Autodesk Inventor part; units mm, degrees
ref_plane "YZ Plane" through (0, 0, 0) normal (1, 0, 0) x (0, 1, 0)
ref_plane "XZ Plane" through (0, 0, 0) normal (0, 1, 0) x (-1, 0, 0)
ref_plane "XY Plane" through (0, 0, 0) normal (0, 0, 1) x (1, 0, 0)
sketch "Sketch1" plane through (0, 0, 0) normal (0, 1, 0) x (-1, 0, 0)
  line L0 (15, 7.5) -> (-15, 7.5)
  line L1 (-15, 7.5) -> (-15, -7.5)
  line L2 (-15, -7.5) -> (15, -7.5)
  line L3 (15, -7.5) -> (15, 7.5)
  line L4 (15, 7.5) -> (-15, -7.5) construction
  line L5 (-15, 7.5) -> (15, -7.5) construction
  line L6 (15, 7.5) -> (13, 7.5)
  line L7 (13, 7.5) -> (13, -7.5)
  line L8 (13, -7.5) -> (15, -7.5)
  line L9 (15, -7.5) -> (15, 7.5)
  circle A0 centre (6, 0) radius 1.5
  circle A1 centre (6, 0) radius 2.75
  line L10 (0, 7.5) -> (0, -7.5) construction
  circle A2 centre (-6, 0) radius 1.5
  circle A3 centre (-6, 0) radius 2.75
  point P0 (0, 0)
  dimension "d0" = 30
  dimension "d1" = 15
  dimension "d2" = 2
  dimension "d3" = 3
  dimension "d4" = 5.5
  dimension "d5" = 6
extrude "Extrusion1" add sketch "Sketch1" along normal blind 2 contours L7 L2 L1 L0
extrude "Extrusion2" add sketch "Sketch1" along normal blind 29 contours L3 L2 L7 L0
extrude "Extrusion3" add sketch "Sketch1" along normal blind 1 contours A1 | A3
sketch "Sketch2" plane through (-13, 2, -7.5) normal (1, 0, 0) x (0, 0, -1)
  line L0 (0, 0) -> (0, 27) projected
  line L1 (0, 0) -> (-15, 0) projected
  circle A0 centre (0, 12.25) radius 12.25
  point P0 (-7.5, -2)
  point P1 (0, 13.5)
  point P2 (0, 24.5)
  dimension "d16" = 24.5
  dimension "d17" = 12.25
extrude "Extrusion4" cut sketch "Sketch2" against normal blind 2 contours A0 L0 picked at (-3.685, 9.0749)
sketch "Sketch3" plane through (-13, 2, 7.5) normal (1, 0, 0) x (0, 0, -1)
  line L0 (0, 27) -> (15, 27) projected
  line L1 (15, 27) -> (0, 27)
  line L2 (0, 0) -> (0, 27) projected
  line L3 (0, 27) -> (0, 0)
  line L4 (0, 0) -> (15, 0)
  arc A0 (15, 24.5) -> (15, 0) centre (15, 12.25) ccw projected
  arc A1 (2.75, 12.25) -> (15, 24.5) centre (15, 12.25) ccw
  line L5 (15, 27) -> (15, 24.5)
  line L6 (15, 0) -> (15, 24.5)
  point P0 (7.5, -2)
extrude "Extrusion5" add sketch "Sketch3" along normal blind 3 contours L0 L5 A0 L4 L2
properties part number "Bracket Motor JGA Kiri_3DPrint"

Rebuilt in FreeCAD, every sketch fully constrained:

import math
import FreeCAD as App
import Part
import Sketcher

V = App.Vector
Q = App.Units.Quantity

doc = App.newDocument("Part")
body = doc.addObject("PartDesign::Body", "Body")

sketch1 = body.newObject("Sketcher::SketchObject", "Sketch")
sketch1.AttachmentSupport = (doc.getObject("XZ_Plane"), [""])
sketch1.MapMode = "FlatFace"
sketch1.addGeometry([
    Part.LineSegment(V(-13, -7.5, 0), V(-13, 7.5, 0)),
    Part.LineSegment(V(-13, 7.5, 0), V(15, 7.5, 0)),
    Part.LineSegment(V(15, 7.5, 0), V(15, -7.5, 0)),
    Part.LineSegment(V(15, -7.5, 0), V(-13, -7.5, 0)),
    Part.Circle(V(6, 0, 0), V(0, 0, 1), 2.8),
    Part.Circle(V(-6, 0, 0), V(0, 0, 1), 2.8),
], False)
sketch1.addConstraint([
    Sketcher.Constraint("Coincident", 0, 2, 1, 1),
    Sketcher.Constraint("Coincident", 1, 2, 2, 1),
    Sketcher.Constraint("Coincident", 2, 2, 3, 1),
    Sketcher.Constraint("Coincident", 3, 2, 0, 1),
    Sketcher.Constraint("Vertical", 0),
    Sketcher.Constraint("Horizontal", 1),
    Sketcher.Constraint("Vertical", 2),
    Sketcher.Constraint("Horizontal", 3),
    Sketcher.Constraint("Equal", 4, 5),
    Sketcher.Constraint("Symmetric", 4, 3, 5, 3, -1, 1),
    Sketcher.Constraint("PointOnObject", 4, 3, -1),
    Sketcher.Constraint("Diameter", 4, Q("5.5 mm")),
    Sketcher.Constraint("DistanceY", 0, 1, 0, 2, Q("15 mm")),
    Sketcher.Constraint("DistanceX", -1, 1, 4, 3, Q("6 mm")),
    Sketcher.Constraint("DistanceX", -1, 1, 1, 2, Q("15 mm")),
    Sketcher.Constraint("DistanceX", 1, 1, 1, 2, Q("28 mm")),
    Sketcher.Constraint("DistanceY", -1, 1, 0, 2, Q("7.5 mm")),
])
pad1 = body.newObject("PartDesign::Pad", "Pad")
pad1.Profile = sketch1
pad1.Length = 2
pad1.Reversed = True

sketch2 = body.newObject("Sketcher::SketchObject", "Sketch001")
sketch2.AttachmentSupport = (doc.getObject("XZ_Plane"), [""])
sketch2.MapMode = "FlatFace"
sketch2.addGeometry([
    Part.LineSegment(V(-15, -7.5, 0), V(-15, 7.5, 0)),
    Part.LineSegment(V(-15, 7.5, 0), V(-13, 7.5, 0)),
    Part.LineSegment(V(-13, 7.5, 0), V(-13, -7.5, 0)),
    Part.LineSegment(V(-13, -7.5, 0), V(-15, -7.5, 0)),
], False)
sketch2.addConstraint([
    Sketcher.Constraint("Coincident", 0, 2, 1, 1),
    Sketcher.Constraint("Coincident", 1, 2, 2, 1),
    Sketcher.Constraint("Coincident", 2, 2, 3, 1),
    Sketcher.Constraint("Coincident", 3, 2, 0, 1),
    Sketcher.Constraint("Vertical", 0),
    Sketcher.Constraint("Horizontal", 1),
    Sketcher.Constraint("Vertical", 2),
    Sketcher.Constraint("Horizontal", 3),
    Sketcher.Constraint("DistanceX", 1, 1, 1, 2, Q("2 mm")),
    Sketcher.Constraint("DistanceY", 0, 1, 0, 2, Q("15 mm")),
    Sketcher.Constraint("DistanceX", 0, 2, -1, 1, Q("15 mm")),
    Sketcher.Constraint("DistanceY", -1, 1, 0, 2, Q("7.5 mm")),
])
pad2 = body.newObject("PartDesign::Pad", "Pad001")
pad2.Profile = sketch2
pad2.Length = 29
pad2.Reversed = True

sketch3 = body.newObject("Sketcher::SketchObject", "Sketch002")
sketch3.AttachmentSupport = (doc.getObject("XZ_Plane"), [""])
sketch3.MapMode = "FlatFace"
sketch3.addGeometry([
    Part.Circle(V(-6, 0, 0), V(0, 0, 1), 2.8),
    Part.Circle(V(-6, 0, 0), V(0, 0, 1), 1.5),
    Part.Circle(V(6, 0, 0), V(0, 0, 1), 2.8),
    Part.Circle(V(6, 0, 0), V(0, 0, 1), 1.5),
], False)
sketch3.addConstraint([
    Sketcher.Constraint("Coincident", 1, 3, 0, 3),
    Sketcher.Constraint("Coincident", 3, 3, 2, 3),
    Sketcher.Constraint("Equal", 0, 2),
    Sketcher.Constraint("Equal", 1, 3),
    Sketcher.Constraint("Symmetric", 0, 3, 2, 3, -1, 1),
    Sketcher.Constraint("PointOnObject", 0, 3, -1),
    Sketcher.Constraint("Diameter", 1, Q("3 mm")),
    Sketcher.Constraint("Diameter", 0, Q("5.5 mm")),
    Sketcher.Constraint("DistanceX", 0, 3, -1, 1, Q("6 mm")),
])
pad3 = body.newObject("PartDesign::Pad", "Pad002")
pad3.Profile = sketch3
pad3.Length = 1
pad3.Reversed = True

sketch4 = body.newObject("Sketcher::SketchObject", "Sketch003")
sketch4.AttachmentSupport = (doc.getObject("YZ_Plane"), [""])
sketch4.MapMode = "FlatFace"
sketch4.AttachmentOffset = App.Placement(V(0, 0, -13), App.Rotation())
sketch4.addGeometry([
    Part.ArcOfCircle(Part.Circle(V(14, -8, 0), V(0, 0, 1), 12), math.radians(0), math.radians(180)),
    Part.LineSegment(V(2, -8, 0), V(26, -8, 0)),
], False)
sketch4.addConstraint([
    Sketcher.Constraint("Coincident", 0, 1, 1, 2),
    Sketcher.Constraint("Coincident", 1, 1, 0, 2),
    Sketcher.Constraint("Horizontal", 1),
    Sketcher.Constraint("Radius", 0, Q("12.25 mm")),
    Sketcher.Constraint("DistanceX", -1, 1, 1, 1, Q("2 mm")),
    Sketcher.Constraint("DistanceY", 0, 3, -1, 1, Q("7.5 mm")),
    Sketcher.Constraint("DistanceY", 0, 1, -1, 1, Q("7.5 mm")),
])
pocket1 = body.newObject("PartDesign::Pocket", "Pocket")
pocket1.Profile = sketch4
pocket1.Length = 2

sketch5 = body.newObject("Sketcher::SketchObject", "Sketch004")
sketch5.AttachmentSupport = (doc.getObject("YZ_Plane"), [""])
sketch5.MapMode = "FlatFace"
sketch5.AttachmentOffset = App.Placement(V(0, 0, -13), App.Rotation())
sketch5.addGeometry([
    Part.LineSegment(V(29, -7.5, 0), V(29, 7.5, 0)),
    Part.LineSegment(V(29, 7.5, 0), V(2, 7.5, 0)),
    Part.LineSegment(V(2, 7.5, 0), V(2, -7.5, 0)),
    Part.ArcOfCircle(Part.Circle(V(14.2, -7.5, 0), V(0, 0, 1), 12.2), math.radians(0), math.radians(180)),
    Part.LineSegment(V(26.5, -7.5, 0), V(29, -7.5, 0)),
], False)
sketch5.addConstraint([
    Sketcher.Constraint("Coincident", 0, 2, 1, 1),
    Sketcher.Constraint("Coincident", 1, 2, 2, 1),
    Sketcher.Constraint("Tangent", 2, 2, 3, 2),
    Sketcher.Constraint("Coincident", 3, 1, 4, 1),
    Sketcher.Constraint("Coincident", 4, 2, 0, 1),
    Sketcher.Constraint("Vertical", 0),
    Sketcher.Constraint("Horizontal", 1),
    Sketcher.Constraint("Vertical", 2),
    Sketcher.Constraint("Horizontal", 4),
    Sketcher.Constraint("Horizontal", 2, 2, 3, 1),
    Sketcher.Constraint("DistanceX", 1, 2, 1, 1, Q("27 mm")),
    Sketcher.Constraint("DistanceY", 0, 1, 0, 2, Q("15 mm")),
    Sketcher.Constraint("Radius", 3, Q("12.25 mm")),
    Sketcher.Constraint("DistanceX", -1, 1, 0, 2, Q("29 mm")),
    Sketcher.Constraint("DistanceY", 3, 3, -1, 1, Q("7.5 mm")),
])
pad4 = body.newObject("PartDesign::Pad", "Pad003")
pad4.Profile = sketch5
pad4.Length = 3

doc.recompute()
